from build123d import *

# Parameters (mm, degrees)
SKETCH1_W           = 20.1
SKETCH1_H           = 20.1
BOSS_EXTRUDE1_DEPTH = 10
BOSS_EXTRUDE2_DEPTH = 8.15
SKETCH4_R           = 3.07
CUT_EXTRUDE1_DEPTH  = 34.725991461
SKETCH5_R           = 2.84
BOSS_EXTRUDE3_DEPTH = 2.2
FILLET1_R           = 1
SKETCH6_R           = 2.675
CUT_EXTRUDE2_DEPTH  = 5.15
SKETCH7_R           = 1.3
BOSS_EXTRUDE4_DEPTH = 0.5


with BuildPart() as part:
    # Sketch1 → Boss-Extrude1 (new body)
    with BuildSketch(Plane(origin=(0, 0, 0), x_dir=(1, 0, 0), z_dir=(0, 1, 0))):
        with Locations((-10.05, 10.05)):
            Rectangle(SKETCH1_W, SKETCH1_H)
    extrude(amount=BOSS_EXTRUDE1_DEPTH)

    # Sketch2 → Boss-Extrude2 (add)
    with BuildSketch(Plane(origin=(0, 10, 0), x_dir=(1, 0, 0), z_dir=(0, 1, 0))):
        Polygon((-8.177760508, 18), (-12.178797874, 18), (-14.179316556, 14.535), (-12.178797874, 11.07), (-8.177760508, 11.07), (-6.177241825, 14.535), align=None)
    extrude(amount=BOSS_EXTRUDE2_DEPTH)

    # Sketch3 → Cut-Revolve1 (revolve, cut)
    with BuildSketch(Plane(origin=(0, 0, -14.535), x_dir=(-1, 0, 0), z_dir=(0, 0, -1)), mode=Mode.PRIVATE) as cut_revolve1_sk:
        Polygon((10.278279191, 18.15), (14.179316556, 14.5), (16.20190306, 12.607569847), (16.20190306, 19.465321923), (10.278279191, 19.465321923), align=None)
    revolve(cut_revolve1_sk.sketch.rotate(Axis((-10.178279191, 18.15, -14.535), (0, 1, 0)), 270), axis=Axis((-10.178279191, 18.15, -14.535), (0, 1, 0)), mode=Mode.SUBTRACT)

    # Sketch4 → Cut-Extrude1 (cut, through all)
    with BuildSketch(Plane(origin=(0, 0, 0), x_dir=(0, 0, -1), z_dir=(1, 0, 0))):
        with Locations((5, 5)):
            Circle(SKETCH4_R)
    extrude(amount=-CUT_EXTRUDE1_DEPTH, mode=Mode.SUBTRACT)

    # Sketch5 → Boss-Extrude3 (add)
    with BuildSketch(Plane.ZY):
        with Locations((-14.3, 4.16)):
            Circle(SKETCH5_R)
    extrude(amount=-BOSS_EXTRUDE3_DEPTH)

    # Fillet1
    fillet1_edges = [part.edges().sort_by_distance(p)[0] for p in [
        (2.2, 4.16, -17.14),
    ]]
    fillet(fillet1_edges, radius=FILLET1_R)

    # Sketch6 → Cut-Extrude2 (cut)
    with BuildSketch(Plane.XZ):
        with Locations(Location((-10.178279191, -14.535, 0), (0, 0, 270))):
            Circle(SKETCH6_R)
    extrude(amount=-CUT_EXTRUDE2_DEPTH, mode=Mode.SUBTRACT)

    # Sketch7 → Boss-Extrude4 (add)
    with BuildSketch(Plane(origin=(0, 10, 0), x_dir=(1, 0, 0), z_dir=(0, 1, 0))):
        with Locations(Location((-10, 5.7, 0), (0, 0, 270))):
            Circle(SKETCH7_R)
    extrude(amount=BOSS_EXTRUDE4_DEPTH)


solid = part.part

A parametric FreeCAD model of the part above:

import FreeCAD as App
import Part
import Sketcher
Q = App.Units.Quantity


def edges_at(feature, points):
    """Names of the edges that pass closest to the given points."""
    edges = feature.Shape.Edges
    near = lambda p: min(range(len(edges)), key=lambda i: edges[i].distToShape(Part.Vertex(*p))[0])
    return sorted({f"Edge{near(p) + 1}" for p in points})


def add_polygon(sketch, points):
    """Adds a closed chain of lines whose ends are joined by coincident constraints."""
    first, n = sketch.GeometryCount, len(points)
    for a, b in zip(points, points[1:] + points[:1]):
        sketch.addGeometry(Part.LineSegment(App.Vector(*a, 0), App.Vector(*b, 0)), False)
    for i in range(n):
        sketch.addConstraint(Sketcher.Constraint("Coincident", first + i, 2, first + (i + 1) % n, 1))

doc = App.newDocument("Part")
body = doc.addObject("PartDesign::Body", "Body")

# Sketch on XZ plane
sketch1 = doc.addObject("Sketcher::SketchObject", "Sketch")
body.addObject(sketch1)
sketch1.AttachmentSupport = (doc.XZ_Plane, [""])
sketch1.MapMode = "FlatFace"
add_polygon(sketch1, [(-20, -20), (-20, 0), (0, 0), (0, -20)])  # lines 0-3
sketch1.addConstraint(Sketcher.Constraint("Vertical", 0))
sketch1.addConstraint(Sketcher.Constraint("Horizontal", 1))
sketch1.addConstraint(Sketcher.Constraint("Vertical", 2))
sketch1.addConstraint(Sketcher.Constraint("Horizontal", 3))
sketch1.addConstraint(Sketcher.Constraint("Coincident", 1, 2, -1, 1))
sketch1.addConstraint(Sketcher.Constraint("Equal", 3, 0))
sketch1.addConstraint(Sketcher.Constraint("DistanceX", 1, 1, 1, 2, Q("20.1 mm")))
pad1 = doc.addObject("PartDesign::Pad", "Pad")
body.addObject(pad1)
pad1.Profile = sketch1
pad1.Length = 10
pad1.Reversed = True

# Sketch on XZ plane
sketch2 = doc.addObject("Sketcher::SketchObject", "Sketch001")
body.addObject(sketch2)
sketch2.AttachmentSupport = (doc.XZ_Plane, [""])
sketch2.MapMode = "FlatFace"
sketch2.AttachmentOffset = App.Placement(App.Vector(0, 0, -10), App.Rotation())
add_polygon(sketch2, [(-8.2, -18), (-12.2, -18), (-14.2, -14.5), (-12.2, -11.1), (-8.2, -11.1), (-6.2, -14.5)])  # lines 0-5
sketch2.addConstraint(Sketcher.Constraint("Horizontal", 0))
sketch2.addConstraint(Sketcher.Constraint("Horizontal", 3))
sketch2.addConstraint(Sketcher.Constraint("Parallel", 1, 4))
sketch2.addConstraint(Sketcher.Constraint("Parallel", 2, 5))
sketch2.addConstraint(Sketcher.Constraint("Horizontal", 1, 2, 4, 2))
sketch2.addConstraint(Sketcher.Constraint("Vertical", 0, 2, 2, 2))
sketch2.addConstraint(Sketcher.Constraint("Vertical", 3, 2, 5, 2))
sketch2.addConstraint(Sketcher.Constraint("Angle", 1, Q("120 deg")))
sketch2.addConstraint(Sketcher.Constraint("DistanceY", 0, 2, -1, 1, Q("18 mm")))
sketch2.addConstraint(Sketcher.Constraint("DistanceY", 2, 2, -1, 1, Q("11.07 mm")))
sketch2.addConstraint(Sketcher.Constraint("DistanceX", 0, 2, 0, 1, Q("4.001037 mm")))
sketch2.addConstraint(Sketcher.Constraint("DistanceX", 3, 2, -1, 1, Q("8.177761 mm")))
pad2 = doc.addObject("PartDesign::Pad", "Pad001")
body.addObject(pad2)
pad2.Profile = sketch2
pad2.Length = 8.15
pad2.Reversed = True

# Sketch on XY plane
sketch3 = doc.addObject("Sketcher::SketchObject", "Sketch002")
body.addObject(sketch3)
sketch3.AttachmentSupport = (doc.XY_Plane, [""])
sketch3.MapMode = "FlatFace"
sketch3.AttachmentOffset = App.Placement(App.Vector(0, 0, -14.535), App.Rotation())
add_polygon(sketch3, [(-10.3, 18.1), (-14.2, 14.5), (-16.2, 12.6), (-16.2, 19.5), (-10.3, 19.5)])  # lines 0-4
sketch3.addGeometry(Part.LineSegment(App.Vector(-10.2, 12.6, 0), App.Vector(-10.2, 19.5, 0)), True)  # axis
sketch3.addConstraint(Sketcher.Constraint("Vertical", 2))
sketch3.addConstraint(Sketcher.Constraint("Horizontal", 3))
sketch3.addConstraint(Sketcher.Constraint("Vertical", 4))
sketch3.addConstraint(Sketcher.Constraint("Vertical", 5))
sketch3.addConstraint(Sketcher.Constraint("Parallel", 0, 1))
sketch3.addConstraint(Sketcher.Constraint("Horizontal", 1, 2, 5, 1))
sketch3.addConstraint(Sketcher.Constraint("Horizontal", 3, 2, 5, 2))
sketch3.addConstraint(Sketcher.Constraint("DistanceY", -1, 1, 0, 2, Q("14.5 mm")))
sketch3.addConstraint(Sketcher.Constraint("DistanceX", 4, 2, 5, 1, Q("0.1 mm")))
sketch3.addConstraint(Sketcher.Constraint("DistanceY", -1, 1, 4, 2, Q("18.15 mm")))
sketch3.addConstraint(Sketcher.Constraint("DistanceY", 4, 2, 4, 1, Q("1.315322 mm")))
sketch3.addConstraint(Sketcher.Constraint("Distance", 0, Q("5.34234 mm")))
sketch3.addConstraint(Sketcher.Constraint("DistanceX", 3, 1, 3, 2, Q("5.923624 mm")))
sketch3.addConstraint(Sketcher.Constraint("DistanceX", 3, 2, -1, 1, Q("10.278279 mm")))
groove = doc.addObject("PartDesign::Groove", "Groove")
body.addObject(groove)
groove.Profile = sketch3
groove.ReferenceAxis = (sketch3, ["Axis0"])
groove.Angle = 360

# Sketch on YZ plane
sketch4 = doc.addObject("Sketcher::SketchObject", "Sketch003")
body.addObject(sketch4)
sketch4.AttachmentSupport = (doc.YZ_Plane, [""])
sketch4.MapMode = "FlatFace"
sketch4.addGeometry(Part.Circle(App.Vector(5, -5, 0), App.Vector(0, 0, 1), 3.1), False)
sketch4.addConstraint(Sketcher.Constraint("Diameter", 0, Q("6.14 mm")))
sketch4.addConstraint(Sketcher.Constraint("DistanceX", -1, 1, 0, 3, Q("5 mm")))
sketch4.addConstraint(Sketcher.Constraint("DistanceY", 0, 3, -1, 1, Q("5 mm")))
pocket1 = doc.addObject("PartDesign::Pocket", "Pocket")
body.addObject(pocket1)
pocket1.Profile = sketch4
pocket1.Type = "ThroughAll"

# Sketch on YZ plane
sketch5 = doc.addObject("Sketcher::SketchObject", "Sketch004")
body.addObject(sketch5)
sketch5.AttachmentSupport = (doc.YZ_Plane, [""])
sketch5.MapMode = "FlatFace"
sketch5.addGeometry(Part.Circle(App.Vector(4.2, -14.3, 0), App.Vector(0, 0, 1), 2.8), False)
sketch5.addConstraint(Sketcher.Constraint("Diameter", 0, Q("5.68 mm")))
sketch5.addConstraint(Sketcher.Constraint("DistanceY", 0, 3, -1, 1, Q("14.3 mm")))
sketch5.addConstraint(Sketcher.Constraint("DistanceX", -1, 1, 0, 3, Q("4.16 mm")))
pad3 = doc.addObject("PartDesign::Pad", "Pad002")
body.addObject(pad3)
pad3.Profile = sketch5
pad3.Length = 2.2
doc.recompute()

fillet = doc.addObject("PartDesign::Fillet", "Fillet")
body.addObject(fillet)
fillet.Base = (pad3, edges_at(pad3, [(2.2, 4.16, -17.14)]))
fillet.Radius = 1

# Sketch on XZ plane
sketch6 = doc.addObject("Sketcher::SketchObject", "Sketch005")
body.addObject(sketch6)
sketch6.AttachmentSupport = (doc.XZ_Plane, [""])
sketch6.MapMode = "FlatFace"
sketch6.addGeometry(Part.Circle(App.Vector(-10.2, -14.5, 0), App.Vector(0, 0, 1), 2.7), False)
sketch6.addConstraint(Sketcher.Constraint("Diameter", 0, Q("5.35 mm")))
sketch6.addConstraint(Sketcher.Constraint("DistanceY", 0, 3, -1, 1, Q("14.535 mm")))
sketch6.addConstraint(Sketcher.Constraint("DistanceX", 0, 3, -1, 1, Q("10.178279 mm")))
pocket2 = doc.addObject("PartDesign::Pocket", "Pocket001")
body.addObject(pocket2)
pocket2.Profile = sketch6
pocket2.Length = 5.15

# Sketch on XZ plane
sketch7 = doc.addObject("Sketcher::SketchObject", "Sketch006")
body.addObject(sketch7)
sketch7.AttachmentSupport = (doc.XZ_Plane, [""])
sketch7.MapMode = "FlatFace"
sketch7.AttachmentOffset = App.Placement(App.Vector(0, 0, -10), App.Rotation())
sketch7.addGeometry(Part.Circle(App.Vector(-10, -5.7, 0), App.Vector(0, 0, 1), 1.3), False)
sketch7.addConstraint(Sketcher.Constraint("Diameter", 0, Q("2.6 mm")))
sketch7.addConstraint(Sketcher.Constraint("DistanceX", 0, 3, -1, 1, Q("10 mm")))
sketch7.addConstraint(Sketcher.Constraint("DistanceY", 0, 3, -1, 1, Q("5.7 mm")))
pad4 = doc.addObject("PartDesign::Pad", "Pad003")
body.addObject(pad4)
pad4.Profile = sketch7
pad4.Length = 0.5
pad4.Reversed = True

doc.recompute()
